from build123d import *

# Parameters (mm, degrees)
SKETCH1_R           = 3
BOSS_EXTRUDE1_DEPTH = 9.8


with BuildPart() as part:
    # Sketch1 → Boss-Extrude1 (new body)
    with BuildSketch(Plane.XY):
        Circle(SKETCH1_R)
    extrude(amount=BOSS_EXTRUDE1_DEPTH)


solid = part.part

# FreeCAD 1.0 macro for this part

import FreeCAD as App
import Part
import Sketcher

V = App.Vector
Q = App.Units.Quantity

doc = App.newDocument("Part")
body = doc.addObject("PartDesign::Body", "Body")

sketch1 = body.newObject("Sketcher::SketchObject", "Sketch")
sketch1.AttachmentSupport = (doc.getObject("XY_Plane"), [""])
sketch1.MapMode = "FlatFace"
sketch1.addGeometry(Part.Circle(V(0, 0, 0), V(0, 0, 1), 3), False)
sketch1.addConstraint([
    Sketcher.Constraint("Coincident", 0, 3, -1, 1),
    Sketcher.Constraint("Diameter", 0, Q("6 mm")),
])
pad1 = body.newObject("PartDesign::Pad", "Pad")
pad1.Profile = sketch1
pad1.Length = 9.8

doc.recompute()
